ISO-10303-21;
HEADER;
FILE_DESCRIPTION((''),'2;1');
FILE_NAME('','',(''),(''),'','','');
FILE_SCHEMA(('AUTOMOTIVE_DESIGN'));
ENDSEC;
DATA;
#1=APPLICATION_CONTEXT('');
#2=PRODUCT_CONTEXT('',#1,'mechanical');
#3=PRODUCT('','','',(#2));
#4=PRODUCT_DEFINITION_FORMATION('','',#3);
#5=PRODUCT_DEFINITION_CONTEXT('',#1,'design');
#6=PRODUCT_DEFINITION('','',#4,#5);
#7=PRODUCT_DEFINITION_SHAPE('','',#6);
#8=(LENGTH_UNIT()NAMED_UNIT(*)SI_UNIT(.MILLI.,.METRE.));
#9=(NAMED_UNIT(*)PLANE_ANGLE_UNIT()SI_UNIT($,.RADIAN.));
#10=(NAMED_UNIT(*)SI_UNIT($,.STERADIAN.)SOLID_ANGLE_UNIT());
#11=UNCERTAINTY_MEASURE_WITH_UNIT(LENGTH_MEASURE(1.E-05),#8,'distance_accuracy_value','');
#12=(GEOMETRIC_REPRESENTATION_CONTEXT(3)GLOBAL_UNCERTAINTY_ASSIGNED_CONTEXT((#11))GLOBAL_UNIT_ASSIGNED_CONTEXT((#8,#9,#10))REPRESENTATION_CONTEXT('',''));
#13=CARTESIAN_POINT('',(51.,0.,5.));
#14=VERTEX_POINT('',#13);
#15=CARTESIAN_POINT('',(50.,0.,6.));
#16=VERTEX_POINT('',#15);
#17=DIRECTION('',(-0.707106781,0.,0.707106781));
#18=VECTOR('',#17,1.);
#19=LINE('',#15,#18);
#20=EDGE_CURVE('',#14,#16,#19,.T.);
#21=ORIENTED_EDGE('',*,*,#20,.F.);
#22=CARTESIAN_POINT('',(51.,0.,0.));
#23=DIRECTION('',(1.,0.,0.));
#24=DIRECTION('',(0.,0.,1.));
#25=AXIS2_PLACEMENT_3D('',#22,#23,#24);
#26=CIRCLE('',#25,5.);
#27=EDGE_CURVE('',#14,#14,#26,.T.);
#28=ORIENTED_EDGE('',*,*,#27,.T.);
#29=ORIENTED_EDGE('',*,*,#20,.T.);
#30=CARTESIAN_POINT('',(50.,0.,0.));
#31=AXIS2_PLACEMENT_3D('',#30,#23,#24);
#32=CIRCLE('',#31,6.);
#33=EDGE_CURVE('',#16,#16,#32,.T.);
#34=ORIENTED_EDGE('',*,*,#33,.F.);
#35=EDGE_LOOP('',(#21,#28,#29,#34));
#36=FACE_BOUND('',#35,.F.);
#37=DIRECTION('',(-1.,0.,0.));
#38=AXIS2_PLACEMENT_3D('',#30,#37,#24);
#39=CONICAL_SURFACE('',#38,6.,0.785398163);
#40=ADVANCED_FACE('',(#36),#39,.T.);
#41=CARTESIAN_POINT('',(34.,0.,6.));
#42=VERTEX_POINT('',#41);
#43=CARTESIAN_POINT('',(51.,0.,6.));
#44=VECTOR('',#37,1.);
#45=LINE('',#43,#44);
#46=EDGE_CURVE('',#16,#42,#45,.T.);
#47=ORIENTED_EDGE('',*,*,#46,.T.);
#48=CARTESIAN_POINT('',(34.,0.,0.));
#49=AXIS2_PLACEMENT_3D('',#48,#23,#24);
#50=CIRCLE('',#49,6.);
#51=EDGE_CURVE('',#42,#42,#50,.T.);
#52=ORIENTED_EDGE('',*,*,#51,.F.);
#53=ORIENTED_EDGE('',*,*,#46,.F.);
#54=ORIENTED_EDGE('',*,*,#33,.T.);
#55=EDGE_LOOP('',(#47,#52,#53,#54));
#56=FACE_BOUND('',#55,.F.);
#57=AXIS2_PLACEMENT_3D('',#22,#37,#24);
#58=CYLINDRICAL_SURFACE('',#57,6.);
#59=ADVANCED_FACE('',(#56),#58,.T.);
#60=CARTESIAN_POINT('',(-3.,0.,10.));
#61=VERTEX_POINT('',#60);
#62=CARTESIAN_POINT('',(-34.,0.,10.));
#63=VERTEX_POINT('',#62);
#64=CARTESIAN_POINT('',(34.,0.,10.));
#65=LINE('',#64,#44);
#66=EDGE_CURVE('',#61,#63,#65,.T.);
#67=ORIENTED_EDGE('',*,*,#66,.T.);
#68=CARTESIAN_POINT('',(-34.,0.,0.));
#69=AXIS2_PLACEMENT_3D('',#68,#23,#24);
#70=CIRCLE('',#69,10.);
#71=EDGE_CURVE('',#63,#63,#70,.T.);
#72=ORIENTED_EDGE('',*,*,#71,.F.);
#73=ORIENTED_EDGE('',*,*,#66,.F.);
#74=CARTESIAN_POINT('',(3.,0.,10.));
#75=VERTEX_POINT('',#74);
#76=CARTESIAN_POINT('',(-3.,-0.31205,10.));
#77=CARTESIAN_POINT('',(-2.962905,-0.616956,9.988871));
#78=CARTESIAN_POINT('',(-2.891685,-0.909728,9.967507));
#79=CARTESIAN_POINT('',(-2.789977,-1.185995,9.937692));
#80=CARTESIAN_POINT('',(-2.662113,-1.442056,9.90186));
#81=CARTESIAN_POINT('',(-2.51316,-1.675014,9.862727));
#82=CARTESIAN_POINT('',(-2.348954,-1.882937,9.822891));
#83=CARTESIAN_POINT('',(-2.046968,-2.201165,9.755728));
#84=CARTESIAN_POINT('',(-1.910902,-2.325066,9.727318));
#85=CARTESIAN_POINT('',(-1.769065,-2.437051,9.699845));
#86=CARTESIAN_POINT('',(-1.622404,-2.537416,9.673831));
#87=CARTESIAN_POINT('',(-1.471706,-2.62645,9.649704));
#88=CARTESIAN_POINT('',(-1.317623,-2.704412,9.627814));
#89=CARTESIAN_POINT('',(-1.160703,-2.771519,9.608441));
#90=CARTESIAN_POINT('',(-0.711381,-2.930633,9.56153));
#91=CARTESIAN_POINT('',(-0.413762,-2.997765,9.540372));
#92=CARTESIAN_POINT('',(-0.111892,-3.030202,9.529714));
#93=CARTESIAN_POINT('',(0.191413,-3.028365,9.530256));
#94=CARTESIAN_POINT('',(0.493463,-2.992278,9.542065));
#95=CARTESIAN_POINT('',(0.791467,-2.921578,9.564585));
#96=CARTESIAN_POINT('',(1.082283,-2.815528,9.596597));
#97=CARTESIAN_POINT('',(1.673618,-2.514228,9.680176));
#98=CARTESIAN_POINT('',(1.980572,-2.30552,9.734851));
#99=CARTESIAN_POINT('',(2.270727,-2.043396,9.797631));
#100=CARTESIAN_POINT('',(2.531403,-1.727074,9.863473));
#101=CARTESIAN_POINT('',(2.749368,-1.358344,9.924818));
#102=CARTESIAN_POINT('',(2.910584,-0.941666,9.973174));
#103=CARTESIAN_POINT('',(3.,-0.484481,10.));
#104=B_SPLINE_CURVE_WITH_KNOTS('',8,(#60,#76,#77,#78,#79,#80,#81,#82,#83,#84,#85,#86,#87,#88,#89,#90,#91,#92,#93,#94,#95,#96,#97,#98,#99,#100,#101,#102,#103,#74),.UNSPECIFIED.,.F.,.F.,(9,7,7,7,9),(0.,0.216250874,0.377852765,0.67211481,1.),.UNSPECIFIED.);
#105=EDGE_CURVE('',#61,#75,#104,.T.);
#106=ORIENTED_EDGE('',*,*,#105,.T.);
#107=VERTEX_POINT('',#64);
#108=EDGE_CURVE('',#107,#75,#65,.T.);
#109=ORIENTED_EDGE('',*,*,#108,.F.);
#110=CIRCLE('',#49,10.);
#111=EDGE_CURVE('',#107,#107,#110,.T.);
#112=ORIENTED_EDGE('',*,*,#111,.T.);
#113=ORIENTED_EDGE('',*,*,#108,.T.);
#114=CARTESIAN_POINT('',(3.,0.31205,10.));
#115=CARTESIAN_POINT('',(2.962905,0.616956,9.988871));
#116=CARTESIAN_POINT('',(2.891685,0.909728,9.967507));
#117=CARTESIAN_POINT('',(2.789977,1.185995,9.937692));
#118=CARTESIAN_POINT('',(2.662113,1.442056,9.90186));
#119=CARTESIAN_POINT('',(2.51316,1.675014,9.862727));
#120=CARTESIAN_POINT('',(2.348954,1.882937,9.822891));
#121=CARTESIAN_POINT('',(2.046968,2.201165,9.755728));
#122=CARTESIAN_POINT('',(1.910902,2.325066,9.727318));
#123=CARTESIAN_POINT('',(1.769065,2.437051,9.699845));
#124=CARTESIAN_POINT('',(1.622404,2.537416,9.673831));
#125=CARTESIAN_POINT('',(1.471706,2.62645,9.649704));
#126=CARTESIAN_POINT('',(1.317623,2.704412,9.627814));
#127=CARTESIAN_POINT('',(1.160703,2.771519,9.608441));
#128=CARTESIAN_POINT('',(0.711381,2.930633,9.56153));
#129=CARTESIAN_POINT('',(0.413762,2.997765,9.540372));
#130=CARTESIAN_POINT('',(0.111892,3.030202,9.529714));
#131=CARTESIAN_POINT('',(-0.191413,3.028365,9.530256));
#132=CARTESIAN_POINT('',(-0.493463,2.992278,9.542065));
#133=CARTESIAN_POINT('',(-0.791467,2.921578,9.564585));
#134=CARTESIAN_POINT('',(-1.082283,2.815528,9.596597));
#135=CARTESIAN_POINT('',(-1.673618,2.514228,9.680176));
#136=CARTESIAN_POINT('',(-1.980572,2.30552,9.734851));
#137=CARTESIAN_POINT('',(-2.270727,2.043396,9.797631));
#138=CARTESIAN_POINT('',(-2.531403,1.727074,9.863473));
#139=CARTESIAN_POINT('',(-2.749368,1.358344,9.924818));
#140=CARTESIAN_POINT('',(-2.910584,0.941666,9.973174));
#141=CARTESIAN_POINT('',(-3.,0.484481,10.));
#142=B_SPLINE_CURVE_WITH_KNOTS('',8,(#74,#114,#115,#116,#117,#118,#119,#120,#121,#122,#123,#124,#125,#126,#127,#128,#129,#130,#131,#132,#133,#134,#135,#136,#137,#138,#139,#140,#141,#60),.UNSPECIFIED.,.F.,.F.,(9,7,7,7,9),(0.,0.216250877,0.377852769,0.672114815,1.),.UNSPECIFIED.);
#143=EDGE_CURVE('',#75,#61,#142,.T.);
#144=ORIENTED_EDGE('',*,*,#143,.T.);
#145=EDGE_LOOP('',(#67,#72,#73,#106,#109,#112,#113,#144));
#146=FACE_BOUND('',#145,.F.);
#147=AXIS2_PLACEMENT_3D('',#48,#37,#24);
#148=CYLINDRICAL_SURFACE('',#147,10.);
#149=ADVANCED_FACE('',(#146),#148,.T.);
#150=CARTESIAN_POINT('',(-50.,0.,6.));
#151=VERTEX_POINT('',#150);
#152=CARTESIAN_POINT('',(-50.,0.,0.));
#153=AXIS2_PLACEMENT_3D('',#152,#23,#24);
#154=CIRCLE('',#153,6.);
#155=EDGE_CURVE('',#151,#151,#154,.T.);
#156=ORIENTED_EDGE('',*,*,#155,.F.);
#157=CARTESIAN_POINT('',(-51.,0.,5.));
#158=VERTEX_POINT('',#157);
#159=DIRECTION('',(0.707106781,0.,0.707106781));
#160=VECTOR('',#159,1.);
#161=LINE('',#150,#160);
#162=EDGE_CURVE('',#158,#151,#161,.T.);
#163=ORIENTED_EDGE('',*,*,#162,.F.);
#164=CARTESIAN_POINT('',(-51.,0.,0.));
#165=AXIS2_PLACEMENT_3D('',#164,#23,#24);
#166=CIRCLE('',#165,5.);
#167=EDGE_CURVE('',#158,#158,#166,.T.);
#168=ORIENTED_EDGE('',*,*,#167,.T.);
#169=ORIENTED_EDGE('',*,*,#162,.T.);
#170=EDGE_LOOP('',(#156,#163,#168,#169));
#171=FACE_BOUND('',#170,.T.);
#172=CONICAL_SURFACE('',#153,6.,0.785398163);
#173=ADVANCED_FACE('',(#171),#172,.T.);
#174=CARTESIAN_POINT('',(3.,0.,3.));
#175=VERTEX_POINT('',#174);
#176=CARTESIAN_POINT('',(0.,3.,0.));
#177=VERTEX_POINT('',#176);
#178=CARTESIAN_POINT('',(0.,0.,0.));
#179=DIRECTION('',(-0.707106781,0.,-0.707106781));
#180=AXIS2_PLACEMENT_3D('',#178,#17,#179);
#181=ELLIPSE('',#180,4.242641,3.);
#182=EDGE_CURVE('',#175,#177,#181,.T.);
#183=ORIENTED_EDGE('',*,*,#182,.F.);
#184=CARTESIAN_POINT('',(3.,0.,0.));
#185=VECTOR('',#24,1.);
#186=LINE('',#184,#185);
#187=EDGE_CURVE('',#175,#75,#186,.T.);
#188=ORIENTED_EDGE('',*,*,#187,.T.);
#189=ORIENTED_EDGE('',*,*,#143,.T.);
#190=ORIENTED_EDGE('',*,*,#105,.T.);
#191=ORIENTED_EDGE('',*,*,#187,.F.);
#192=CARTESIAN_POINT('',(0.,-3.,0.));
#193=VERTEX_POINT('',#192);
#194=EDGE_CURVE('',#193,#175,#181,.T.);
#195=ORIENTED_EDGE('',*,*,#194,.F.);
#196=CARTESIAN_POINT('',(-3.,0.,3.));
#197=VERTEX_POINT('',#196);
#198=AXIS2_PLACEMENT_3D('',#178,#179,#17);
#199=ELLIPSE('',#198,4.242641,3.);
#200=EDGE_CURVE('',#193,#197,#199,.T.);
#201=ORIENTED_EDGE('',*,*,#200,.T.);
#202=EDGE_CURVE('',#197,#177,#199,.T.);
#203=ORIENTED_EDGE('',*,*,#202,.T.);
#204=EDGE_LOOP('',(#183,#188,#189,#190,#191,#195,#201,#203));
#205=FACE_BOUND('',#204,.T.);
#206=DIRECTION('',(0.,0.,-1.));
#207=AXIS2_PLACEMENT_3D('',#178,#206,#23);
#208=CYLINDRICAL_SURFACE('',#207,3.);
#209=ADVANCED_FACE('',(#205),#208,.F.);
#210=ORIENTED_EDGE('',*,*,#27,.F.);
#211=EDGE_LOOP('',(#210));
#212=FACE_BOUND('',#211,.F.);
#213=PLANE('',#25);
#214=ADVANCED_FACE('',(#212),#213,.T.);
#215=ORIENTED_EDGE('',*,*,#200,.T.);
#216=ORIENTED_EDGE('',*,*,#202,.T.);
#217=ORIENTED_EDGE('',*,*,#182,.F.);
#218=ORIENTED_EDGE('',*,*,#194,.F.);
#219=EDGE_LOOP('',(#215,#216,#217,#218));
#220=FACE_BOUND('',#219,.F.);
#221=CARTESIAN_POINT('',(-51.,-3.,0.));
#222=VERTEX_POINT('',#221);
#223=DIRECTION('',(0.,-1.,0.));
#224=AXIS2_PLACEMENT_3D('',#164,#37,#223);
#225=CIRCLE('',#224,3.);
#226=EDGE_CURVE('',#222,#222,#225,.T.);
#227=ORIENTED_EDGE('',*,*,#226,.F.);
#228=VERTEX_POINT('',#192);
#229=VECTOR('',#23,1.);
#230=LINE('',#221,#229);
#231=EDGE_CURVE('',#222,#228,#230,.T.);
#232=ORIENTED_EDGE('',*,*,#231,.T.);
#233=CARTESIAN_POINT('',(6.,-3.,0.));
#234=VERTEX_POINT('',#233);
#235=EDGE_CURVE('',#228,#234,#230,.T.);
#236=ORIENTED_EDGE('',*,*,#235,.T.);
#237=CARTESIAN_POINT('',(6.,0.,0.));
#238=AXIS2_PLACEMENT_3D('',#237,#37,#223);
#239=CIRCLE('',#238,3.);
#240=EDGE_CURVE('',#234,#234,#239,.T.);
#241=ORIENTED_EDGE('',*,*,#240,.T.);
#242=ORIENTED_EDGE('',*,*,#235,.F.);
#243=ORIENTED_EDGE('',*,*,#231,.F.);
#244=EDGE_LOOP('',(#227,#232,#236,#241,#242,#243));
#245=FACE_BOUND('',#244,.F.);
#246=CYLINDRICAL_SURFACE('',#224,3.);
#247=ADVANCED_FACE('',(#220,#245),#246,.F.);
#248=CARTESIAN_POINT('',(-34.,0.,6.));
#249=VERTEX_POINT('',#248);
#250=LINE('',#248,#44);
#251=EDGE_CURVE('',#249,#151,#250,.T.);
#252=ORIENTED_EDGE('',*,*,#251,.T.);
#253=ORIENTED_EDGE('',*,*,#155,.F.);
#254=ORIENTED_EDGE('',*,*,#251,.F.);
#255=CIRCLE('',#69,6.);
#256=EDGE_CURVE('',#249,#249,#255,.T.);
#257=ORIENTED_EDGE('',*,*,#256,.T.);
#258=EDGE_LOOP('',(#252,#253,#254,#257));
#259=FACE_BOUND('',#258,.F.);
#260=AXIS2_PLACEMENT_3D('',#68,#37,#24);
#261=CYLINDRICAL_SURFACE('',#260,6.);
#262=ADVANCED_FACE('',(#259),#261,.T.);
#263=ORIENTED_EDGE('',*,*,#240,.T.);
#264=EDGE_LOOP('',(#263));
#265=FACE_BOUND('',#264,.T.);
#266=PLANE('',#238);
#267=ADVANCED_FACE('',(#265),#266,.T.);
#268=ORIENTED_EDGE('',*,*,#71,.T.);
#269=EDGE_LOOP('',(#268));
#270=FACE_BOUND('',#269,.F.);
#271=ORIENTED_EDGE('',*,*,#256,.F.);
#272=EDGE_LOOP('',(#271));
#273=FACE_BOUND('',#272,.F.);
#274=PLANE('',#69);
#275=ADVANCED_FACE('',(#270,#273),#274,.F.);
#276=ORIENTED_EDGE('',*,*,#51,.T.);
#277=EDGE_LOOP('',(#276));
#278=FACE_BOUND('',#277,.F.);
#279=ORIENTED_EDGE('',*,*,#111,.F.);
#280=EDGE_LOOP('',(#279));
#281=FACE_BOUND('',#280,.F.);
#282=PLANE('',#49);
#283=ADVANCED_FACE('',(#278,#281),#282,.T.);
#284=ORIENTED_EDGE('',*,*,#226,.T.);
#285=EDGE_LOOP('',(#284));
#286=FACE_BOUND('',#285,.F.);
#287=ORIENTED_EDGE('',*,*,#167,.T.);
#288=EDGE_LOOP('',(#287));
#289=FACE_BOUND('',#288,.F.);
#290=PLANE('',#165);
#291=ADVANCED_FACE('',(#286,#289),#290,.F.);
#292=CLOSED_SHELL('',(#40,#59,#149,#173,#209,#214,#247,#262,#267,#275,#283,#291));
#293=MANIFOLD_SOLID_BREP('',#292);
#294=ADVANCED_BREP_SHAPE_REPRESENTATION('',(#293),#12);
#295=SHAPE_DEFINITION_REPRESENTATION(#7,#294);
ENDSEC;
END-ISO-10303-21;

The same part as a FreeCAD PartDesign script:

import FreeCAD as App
import Part
import Sketcher
Q = App.Units.Quantity


def edges_at(feature, points):
    """Names of the edges that pass closest to the given points."""
    edges = feature.Shape.Edges
    near = lambda p: min(range(len(edges)), key=lambda i: edges[i].distToShape(Part.Vertex(*p))[0])
    return sorted({f"Edge{near(p) + 1}" for p in points})


def add_polygon(sketch, points):
    """Adds a closed chain of lines whose ends are joined by coincident constraints."""
    first, n = sketch.GeometryCount, len(points)
    for a, b in zip(points, points[1:] + points[:1]):
        sketch.addGeometry(Part.LineSegment(App.Vector(*a, 0), App.Vector(*b, 0)), False)
    for i in range(n):
        sketch.addConstraint(Sketcher.Constraint("Coincident", first + i, 2, first + (i + 1) % n, 1))

doc = App.newDocument("Part")
body = doc.addObject("PartDesign::Body", "Body")

sketch1 = body.newObject("Sketcher::SketchObject", "Sketch")
sketch1.AttachmentSupport = (doc.getObject("XZ_Plane"), [""])
sketch1.MapMode = "FlatFace"
add_polygon(sketch1, [(-51, 6), (-51, 0), (51, 0), (51, 6), (34, 6), (34, 10), (-34, 10), (-34, 6)])
sketch1.addConstraint(Sketcher.Constraint("Vertical", 0))
sketch1.addConstraint(Sketcher.Constraint("Horizontal", 1))
sketch1.addConstraint(Sketcher.Constraint("Vertical", 2))
sketch1.addConstraint(Sketcher.Constraint("Horizontal", 3))
sketch1.addConstraint(Sketcher.Constraint("Vertical", 4))
sketch1.addConstraint(Sketcher.Constraint("Horizontal", 5))
sketch1.addConstraint(Sketcher.Constraint("Vertical", 6))
sketch1.addConstraint(Sketcher.Constraint("Horizontal", 7))
sketch1.addConstraint(Sketcher.Constraint("Symmetric", 0, 2, 1, 2, -1, 1))
sketch1.addConstraint(Sketcher.Constraint("Symmetric", 3, 2, 6, 2, -2))
sketch1.addConstraint(Sketcher.Constraint("DistanceX", 1, 1, 1, 2, Q("102 mm")))
sketch1.addConstraint(Sketcher.Constraint("DistanceX", 3, 2, 3, 1, Q("17 mm")))
sketch1.addConstraint(Sketcher.Constraint("DistanceY", 0, 2, 0, 1, Q("6 mm")))
sketch1.addConstraint(Sketcher.Constraint("DistanceY", 4, 1, 4, 2, Q("4 mm")))
revolution = body.newObject("PartDesign::Revolution", "Revolution")
revolution.Profile = sketch1
revolution.ReferenceAxis = (sketch1, ["H_Axis"])
revolution.Angle = 360
doc.recompute()

chamfer = body.newObject("PartDesign::Chamfer", "Chamfer")
chamfer.Base = (revolution, edges_at(revolution, [(51, 0, -6), (-51, 0, -6)]))
chamfer.Size = 1

sketch2 = body.newObject("Sketcher::SketchObject", "Sketch001")
sketch2.AttachmentSupport = (doc.getObject("YZ_Plane"), [""])
sketch2.MapMode = "FlatFace"
sketch2.AttachmentOffset = App.Placement(App.Vector(0, 0, -51), App.Rotation())
sketch2.addGeometry(Part.Circle(App.Vector(0, 0, 0), App.Vector(0, 0, 1), 3), False)
sketch2.addConstraint(Sketcher.Constraint("Coincident", 0, 3, -1, 1))
sketch2.addConstraint(Sketcher.Constraint("Diameter", 0, Q("6 mm")))
pocket1 = body.newObject("PartDesign::Pocket", "Pocket")
pocket1.Profile = sketch2
pocket1.Length = 57
pocket1.Reversed = True

sketch3 = body.newObject("Sketcher::SketchObject", "Sketch002")
sketch3.AttachmentSupport = (doc.getObject("XY_Plane"), [""])
sketch3.MapMode = "FlatFace"
sketch3.addGeometry(Part.Circle(App.Vector(0, 0, 0), App.Vector(0, 0, 1), 3), False)
sketch3.addConstraint(Sketcher.Constraint("Coincident", 0, 3, -1, 1))
sketch3.addConstraint(Sketcher.Constraint("Diameter", 0, Q("6 mm")))
pocket2 = body.newObject("PartDesign::Pocket", "Pocket001")
pocket2.Profile = sketch3
pocket2.Length = 32
pocket2.Reversed = True

doc.recompute()
